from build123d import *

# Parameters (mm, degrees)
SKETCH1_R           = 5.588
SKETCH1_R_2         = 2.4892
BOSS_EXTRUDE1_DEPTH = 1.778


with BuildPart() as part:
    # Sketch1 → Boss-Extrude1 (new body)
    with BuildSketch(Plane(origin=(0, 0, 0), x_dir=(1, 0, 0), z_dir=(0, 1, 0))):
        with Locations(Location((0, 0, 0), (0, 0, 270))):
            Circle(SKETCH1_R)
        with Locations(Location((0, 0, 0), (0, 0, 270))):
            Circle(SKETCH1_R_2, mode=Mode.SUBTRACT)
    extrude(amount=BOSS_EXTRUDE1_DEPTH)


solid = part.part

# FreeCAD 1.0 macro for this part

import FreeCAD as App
import Part
import Sketcher
from FreeCAD import Vector
Q = App.Units.Quantity

doc = App.newDocument("Part")
body = doc.addObject("PartDesign::Body", "Body")

sketch1 = doc.addObject("Sketcher::SketchObject", "Sketch")
body.addObject(sketch1)
sketch1.AttachmentSupport = (doc.XZ_Plane, [""])
sketch1.MapMode = "FlatFace"
sketch1.addGeometry([
    Part.Circle(Vector(0, 0, 0), Vector(0, 0, 1), 5.588),
    Part.Circle(Vector(0, 0, 0), Vector(0, 0, 1), 2.4892),
], False)
sketch1.addConstraint([
    Sketcher.Constraint("Coincident", 0, 3, -1, 1),
    Sketcher.Constraint("Coincident", 1, 3, -1, 1),
    Sketcher.Constraint("Diameter", 0, Q("0.44 in")),
    Sketcher.Constraint("Diameter", 1, Q("0.196 in")),
])
pad1 = doc.addObject("PartDesign::Pad", "Pad")
body.addObject(pad1)
pad1.Profile = sketch1
pad1.Length = Q("0.07 in")
pad1.Reversed = True

doc.recompute()
